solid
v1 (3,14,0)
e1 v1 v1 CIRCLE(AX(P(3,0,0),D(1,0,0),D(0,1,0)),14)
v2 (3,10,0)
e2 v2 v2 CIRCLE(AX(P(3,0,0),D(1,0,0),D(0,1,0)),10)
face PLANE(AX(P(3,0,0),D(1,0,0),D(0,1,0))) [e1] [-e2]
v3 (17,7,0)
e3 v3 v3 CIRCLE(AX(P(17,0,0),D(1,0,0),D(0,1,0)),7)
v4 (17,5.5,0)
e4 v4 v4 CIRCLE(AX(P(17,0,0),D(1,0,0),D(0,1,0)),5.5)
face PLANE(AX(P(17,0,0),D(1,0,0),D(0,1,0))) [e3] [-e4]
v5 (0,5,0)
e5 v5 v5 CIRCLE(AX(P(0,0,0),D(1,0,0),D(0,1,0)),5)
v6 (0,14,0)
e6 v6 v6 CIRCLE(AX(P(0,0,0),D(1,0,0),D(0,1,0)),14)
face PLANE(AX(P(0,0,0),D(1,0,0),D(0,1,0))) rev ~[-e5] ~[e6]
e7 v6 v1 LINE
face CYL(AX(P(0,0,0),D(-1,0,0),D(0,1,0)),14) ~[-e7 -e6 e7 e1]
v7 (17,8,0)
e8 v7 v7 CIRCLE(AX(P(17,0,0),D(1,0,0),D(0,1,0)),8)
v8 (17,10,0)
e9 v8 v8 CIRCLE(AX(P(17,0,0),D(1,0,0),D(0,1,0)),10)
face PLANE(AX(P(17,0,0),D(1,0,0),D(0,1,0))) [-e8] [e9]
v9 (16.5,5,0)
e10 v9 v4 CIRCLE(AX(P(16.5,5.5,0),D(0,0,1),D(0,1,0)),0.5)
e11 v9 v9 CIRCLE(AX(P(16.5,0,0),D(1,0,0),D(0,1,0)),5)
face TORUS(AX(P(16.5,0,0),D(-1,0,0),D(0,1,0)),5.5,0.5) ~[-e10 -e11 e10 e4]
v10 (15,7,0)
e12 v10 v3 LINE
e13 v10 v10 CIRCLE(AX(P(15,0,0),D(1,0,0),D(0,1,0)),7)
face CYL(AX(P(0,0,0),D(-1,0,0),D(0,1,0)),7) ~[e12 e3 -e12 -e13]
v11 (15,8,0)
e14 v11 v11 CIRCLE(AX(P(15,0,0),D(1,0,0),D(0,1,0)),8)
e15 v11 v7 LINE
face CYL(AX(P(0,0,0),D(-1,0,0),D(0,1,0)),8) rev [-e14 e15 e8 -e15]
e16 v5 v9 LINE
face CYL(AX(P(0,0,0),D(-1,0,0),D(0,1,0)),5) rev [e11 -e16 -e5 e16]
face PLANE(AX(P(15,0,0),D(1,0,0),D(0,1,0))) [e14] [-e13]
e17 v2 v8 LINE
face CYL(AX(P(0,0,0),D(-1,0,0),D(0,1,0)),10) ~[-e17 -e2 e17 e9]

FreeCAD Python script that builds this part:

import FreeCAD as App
import Part
import Sketcher
Q = App.Units.Quantity


def edges_at(feature, points):
    """Names of the edges that pass closest to the given points."""
    edges = feature.Shape.Edges
    near = lambda p: min(range(len(edges)), key=lambda i: edges[i].distToShape(Part.Vertex(*p))[0])
    return sorted({f"Edge{near(p) + 1}" for p in points})

doc = App.newDocument("Part")
body = doc.addObject("PartDesign::Body", "Body")
body.AllowCompound = True

# Sketch on YZ plane
sketch1 = body.newObject("Sketcher::SketchObject", "Sketch")
sketch1.AttachmentSupport = (doc.getObject("YZ_Plane"), [""])
sketch1.MapMode = "FlatFace"
sketch1.addGeometry([
    Part.Circle(App.Vector(0, 0, 0), App.Vector(0, 0, 1), 10),
    Part.Circle(App.Vector(0, 0, 0), App.Vector(0, 0, 1), 8),
    Part.Circle(App.Vector(0, 0, 0), App.Vector(0, 0, 1), 7),
    Part.Circle(App.Vector(0, 0, 0), App.Vector(0, 0, 1), 5),
], False)
sketch1.addConstraint([
    Sketcher.Constraint("Coincident", 0, 3, -1, 1),
    Sketcher.Constraint("Coincident", 1, 3, -1, 1),
    Sketcher.Constraint("Coincident", 2, 3, -1, 1),
    Sketcher.Constraint("Coincident", 3, 3, -1, 1),
    Sketcher.Constraint("Diameter", 0, Q("20 mm")),
    Sketcher.Constraint("Diameter", 3, Q("10 mm")),
    Sketcher.Constraint("Diameter", 1, Q("16 mm")),
    Sketcher.Constraint("Diameter", 2, Q("14 mm")),
])
pad1 = body.newObject("PartDesign::Pad", "Pad")
pad1.Profile = sketch1
pad1.Length = 17

# Sketch on YZ plane
sketch2 = body.newObject("Sketcher::SketchObject", "Sketch001")
sketch2.AttachmentSupport = (doc.getObject("YZ_Plane"), [""])
sketch2.MapMode = "FlatFace"
sketch2.addGeometry([
    Part.Circle(App.Vector(0, 0, 0), App.Vector(0, 0, 1), 8),
    Part.Circle(App.Vector(0, 0, 0), App.Vector(0, 0, 1), 7),
], False)
sketch2.addConstraint([
    Sketcher.Constraint("Coincident", 0, 3, -1, 1),
    Sketcher.Constraint("Coincident", 1, 3, -1, 1),
    Sketcher.Constraint("Diameter", 0, Q("16 mm")),
    Sketcher.Constraint("Diameter", 1, Q("14 mm")),
])
pad2 = body.newObject("PartDesign::Pad", "Pad001")
pad2.Profile = sketch2
pad2.Length = 15
doc.recompute()

fillet = body.newObject("PartDesign::Fillet", "Fillet")
fillet.Base = (pad2, edges_at(pad2, [(17, -5, 0)]))
fillet.Radius = 0.5

# Sketch on YZ plane
sketch3 = body.newObject("Sketcher::SketchObject", "Sketch002")
sketch3.AttachmentSupport = (doc.getObject("YZ_Plane"), [""])
sketch3.MapMode = "FlatFace"
sketch3.addGeometry([
    Part.Circle(App.Vector(0, 0, 0), App.Vector(0, 0, 1), 14),
    Part.Circle(App.Vector(0, 0, 0), App.Vector(0, 0, 1), 10),
], False)
sketch3.addConstraint([
    Sketcher.Constraint("Coincident", 0, 3, -1, 1),
    Sketcher.Constraint("Coincident", 1, 3, -1, 1),
    Sketcher.Constraint("Diameter", 0, Q("28 mm")),
    Sketcher.Constraint("Diameter", 1, Q("20 mm")),
])
pad3 = body.newObject("PartDesign::Pad", "Pad002")
pad3.Profile = sketch3
pad3.Length = 3

doc.recompute()
